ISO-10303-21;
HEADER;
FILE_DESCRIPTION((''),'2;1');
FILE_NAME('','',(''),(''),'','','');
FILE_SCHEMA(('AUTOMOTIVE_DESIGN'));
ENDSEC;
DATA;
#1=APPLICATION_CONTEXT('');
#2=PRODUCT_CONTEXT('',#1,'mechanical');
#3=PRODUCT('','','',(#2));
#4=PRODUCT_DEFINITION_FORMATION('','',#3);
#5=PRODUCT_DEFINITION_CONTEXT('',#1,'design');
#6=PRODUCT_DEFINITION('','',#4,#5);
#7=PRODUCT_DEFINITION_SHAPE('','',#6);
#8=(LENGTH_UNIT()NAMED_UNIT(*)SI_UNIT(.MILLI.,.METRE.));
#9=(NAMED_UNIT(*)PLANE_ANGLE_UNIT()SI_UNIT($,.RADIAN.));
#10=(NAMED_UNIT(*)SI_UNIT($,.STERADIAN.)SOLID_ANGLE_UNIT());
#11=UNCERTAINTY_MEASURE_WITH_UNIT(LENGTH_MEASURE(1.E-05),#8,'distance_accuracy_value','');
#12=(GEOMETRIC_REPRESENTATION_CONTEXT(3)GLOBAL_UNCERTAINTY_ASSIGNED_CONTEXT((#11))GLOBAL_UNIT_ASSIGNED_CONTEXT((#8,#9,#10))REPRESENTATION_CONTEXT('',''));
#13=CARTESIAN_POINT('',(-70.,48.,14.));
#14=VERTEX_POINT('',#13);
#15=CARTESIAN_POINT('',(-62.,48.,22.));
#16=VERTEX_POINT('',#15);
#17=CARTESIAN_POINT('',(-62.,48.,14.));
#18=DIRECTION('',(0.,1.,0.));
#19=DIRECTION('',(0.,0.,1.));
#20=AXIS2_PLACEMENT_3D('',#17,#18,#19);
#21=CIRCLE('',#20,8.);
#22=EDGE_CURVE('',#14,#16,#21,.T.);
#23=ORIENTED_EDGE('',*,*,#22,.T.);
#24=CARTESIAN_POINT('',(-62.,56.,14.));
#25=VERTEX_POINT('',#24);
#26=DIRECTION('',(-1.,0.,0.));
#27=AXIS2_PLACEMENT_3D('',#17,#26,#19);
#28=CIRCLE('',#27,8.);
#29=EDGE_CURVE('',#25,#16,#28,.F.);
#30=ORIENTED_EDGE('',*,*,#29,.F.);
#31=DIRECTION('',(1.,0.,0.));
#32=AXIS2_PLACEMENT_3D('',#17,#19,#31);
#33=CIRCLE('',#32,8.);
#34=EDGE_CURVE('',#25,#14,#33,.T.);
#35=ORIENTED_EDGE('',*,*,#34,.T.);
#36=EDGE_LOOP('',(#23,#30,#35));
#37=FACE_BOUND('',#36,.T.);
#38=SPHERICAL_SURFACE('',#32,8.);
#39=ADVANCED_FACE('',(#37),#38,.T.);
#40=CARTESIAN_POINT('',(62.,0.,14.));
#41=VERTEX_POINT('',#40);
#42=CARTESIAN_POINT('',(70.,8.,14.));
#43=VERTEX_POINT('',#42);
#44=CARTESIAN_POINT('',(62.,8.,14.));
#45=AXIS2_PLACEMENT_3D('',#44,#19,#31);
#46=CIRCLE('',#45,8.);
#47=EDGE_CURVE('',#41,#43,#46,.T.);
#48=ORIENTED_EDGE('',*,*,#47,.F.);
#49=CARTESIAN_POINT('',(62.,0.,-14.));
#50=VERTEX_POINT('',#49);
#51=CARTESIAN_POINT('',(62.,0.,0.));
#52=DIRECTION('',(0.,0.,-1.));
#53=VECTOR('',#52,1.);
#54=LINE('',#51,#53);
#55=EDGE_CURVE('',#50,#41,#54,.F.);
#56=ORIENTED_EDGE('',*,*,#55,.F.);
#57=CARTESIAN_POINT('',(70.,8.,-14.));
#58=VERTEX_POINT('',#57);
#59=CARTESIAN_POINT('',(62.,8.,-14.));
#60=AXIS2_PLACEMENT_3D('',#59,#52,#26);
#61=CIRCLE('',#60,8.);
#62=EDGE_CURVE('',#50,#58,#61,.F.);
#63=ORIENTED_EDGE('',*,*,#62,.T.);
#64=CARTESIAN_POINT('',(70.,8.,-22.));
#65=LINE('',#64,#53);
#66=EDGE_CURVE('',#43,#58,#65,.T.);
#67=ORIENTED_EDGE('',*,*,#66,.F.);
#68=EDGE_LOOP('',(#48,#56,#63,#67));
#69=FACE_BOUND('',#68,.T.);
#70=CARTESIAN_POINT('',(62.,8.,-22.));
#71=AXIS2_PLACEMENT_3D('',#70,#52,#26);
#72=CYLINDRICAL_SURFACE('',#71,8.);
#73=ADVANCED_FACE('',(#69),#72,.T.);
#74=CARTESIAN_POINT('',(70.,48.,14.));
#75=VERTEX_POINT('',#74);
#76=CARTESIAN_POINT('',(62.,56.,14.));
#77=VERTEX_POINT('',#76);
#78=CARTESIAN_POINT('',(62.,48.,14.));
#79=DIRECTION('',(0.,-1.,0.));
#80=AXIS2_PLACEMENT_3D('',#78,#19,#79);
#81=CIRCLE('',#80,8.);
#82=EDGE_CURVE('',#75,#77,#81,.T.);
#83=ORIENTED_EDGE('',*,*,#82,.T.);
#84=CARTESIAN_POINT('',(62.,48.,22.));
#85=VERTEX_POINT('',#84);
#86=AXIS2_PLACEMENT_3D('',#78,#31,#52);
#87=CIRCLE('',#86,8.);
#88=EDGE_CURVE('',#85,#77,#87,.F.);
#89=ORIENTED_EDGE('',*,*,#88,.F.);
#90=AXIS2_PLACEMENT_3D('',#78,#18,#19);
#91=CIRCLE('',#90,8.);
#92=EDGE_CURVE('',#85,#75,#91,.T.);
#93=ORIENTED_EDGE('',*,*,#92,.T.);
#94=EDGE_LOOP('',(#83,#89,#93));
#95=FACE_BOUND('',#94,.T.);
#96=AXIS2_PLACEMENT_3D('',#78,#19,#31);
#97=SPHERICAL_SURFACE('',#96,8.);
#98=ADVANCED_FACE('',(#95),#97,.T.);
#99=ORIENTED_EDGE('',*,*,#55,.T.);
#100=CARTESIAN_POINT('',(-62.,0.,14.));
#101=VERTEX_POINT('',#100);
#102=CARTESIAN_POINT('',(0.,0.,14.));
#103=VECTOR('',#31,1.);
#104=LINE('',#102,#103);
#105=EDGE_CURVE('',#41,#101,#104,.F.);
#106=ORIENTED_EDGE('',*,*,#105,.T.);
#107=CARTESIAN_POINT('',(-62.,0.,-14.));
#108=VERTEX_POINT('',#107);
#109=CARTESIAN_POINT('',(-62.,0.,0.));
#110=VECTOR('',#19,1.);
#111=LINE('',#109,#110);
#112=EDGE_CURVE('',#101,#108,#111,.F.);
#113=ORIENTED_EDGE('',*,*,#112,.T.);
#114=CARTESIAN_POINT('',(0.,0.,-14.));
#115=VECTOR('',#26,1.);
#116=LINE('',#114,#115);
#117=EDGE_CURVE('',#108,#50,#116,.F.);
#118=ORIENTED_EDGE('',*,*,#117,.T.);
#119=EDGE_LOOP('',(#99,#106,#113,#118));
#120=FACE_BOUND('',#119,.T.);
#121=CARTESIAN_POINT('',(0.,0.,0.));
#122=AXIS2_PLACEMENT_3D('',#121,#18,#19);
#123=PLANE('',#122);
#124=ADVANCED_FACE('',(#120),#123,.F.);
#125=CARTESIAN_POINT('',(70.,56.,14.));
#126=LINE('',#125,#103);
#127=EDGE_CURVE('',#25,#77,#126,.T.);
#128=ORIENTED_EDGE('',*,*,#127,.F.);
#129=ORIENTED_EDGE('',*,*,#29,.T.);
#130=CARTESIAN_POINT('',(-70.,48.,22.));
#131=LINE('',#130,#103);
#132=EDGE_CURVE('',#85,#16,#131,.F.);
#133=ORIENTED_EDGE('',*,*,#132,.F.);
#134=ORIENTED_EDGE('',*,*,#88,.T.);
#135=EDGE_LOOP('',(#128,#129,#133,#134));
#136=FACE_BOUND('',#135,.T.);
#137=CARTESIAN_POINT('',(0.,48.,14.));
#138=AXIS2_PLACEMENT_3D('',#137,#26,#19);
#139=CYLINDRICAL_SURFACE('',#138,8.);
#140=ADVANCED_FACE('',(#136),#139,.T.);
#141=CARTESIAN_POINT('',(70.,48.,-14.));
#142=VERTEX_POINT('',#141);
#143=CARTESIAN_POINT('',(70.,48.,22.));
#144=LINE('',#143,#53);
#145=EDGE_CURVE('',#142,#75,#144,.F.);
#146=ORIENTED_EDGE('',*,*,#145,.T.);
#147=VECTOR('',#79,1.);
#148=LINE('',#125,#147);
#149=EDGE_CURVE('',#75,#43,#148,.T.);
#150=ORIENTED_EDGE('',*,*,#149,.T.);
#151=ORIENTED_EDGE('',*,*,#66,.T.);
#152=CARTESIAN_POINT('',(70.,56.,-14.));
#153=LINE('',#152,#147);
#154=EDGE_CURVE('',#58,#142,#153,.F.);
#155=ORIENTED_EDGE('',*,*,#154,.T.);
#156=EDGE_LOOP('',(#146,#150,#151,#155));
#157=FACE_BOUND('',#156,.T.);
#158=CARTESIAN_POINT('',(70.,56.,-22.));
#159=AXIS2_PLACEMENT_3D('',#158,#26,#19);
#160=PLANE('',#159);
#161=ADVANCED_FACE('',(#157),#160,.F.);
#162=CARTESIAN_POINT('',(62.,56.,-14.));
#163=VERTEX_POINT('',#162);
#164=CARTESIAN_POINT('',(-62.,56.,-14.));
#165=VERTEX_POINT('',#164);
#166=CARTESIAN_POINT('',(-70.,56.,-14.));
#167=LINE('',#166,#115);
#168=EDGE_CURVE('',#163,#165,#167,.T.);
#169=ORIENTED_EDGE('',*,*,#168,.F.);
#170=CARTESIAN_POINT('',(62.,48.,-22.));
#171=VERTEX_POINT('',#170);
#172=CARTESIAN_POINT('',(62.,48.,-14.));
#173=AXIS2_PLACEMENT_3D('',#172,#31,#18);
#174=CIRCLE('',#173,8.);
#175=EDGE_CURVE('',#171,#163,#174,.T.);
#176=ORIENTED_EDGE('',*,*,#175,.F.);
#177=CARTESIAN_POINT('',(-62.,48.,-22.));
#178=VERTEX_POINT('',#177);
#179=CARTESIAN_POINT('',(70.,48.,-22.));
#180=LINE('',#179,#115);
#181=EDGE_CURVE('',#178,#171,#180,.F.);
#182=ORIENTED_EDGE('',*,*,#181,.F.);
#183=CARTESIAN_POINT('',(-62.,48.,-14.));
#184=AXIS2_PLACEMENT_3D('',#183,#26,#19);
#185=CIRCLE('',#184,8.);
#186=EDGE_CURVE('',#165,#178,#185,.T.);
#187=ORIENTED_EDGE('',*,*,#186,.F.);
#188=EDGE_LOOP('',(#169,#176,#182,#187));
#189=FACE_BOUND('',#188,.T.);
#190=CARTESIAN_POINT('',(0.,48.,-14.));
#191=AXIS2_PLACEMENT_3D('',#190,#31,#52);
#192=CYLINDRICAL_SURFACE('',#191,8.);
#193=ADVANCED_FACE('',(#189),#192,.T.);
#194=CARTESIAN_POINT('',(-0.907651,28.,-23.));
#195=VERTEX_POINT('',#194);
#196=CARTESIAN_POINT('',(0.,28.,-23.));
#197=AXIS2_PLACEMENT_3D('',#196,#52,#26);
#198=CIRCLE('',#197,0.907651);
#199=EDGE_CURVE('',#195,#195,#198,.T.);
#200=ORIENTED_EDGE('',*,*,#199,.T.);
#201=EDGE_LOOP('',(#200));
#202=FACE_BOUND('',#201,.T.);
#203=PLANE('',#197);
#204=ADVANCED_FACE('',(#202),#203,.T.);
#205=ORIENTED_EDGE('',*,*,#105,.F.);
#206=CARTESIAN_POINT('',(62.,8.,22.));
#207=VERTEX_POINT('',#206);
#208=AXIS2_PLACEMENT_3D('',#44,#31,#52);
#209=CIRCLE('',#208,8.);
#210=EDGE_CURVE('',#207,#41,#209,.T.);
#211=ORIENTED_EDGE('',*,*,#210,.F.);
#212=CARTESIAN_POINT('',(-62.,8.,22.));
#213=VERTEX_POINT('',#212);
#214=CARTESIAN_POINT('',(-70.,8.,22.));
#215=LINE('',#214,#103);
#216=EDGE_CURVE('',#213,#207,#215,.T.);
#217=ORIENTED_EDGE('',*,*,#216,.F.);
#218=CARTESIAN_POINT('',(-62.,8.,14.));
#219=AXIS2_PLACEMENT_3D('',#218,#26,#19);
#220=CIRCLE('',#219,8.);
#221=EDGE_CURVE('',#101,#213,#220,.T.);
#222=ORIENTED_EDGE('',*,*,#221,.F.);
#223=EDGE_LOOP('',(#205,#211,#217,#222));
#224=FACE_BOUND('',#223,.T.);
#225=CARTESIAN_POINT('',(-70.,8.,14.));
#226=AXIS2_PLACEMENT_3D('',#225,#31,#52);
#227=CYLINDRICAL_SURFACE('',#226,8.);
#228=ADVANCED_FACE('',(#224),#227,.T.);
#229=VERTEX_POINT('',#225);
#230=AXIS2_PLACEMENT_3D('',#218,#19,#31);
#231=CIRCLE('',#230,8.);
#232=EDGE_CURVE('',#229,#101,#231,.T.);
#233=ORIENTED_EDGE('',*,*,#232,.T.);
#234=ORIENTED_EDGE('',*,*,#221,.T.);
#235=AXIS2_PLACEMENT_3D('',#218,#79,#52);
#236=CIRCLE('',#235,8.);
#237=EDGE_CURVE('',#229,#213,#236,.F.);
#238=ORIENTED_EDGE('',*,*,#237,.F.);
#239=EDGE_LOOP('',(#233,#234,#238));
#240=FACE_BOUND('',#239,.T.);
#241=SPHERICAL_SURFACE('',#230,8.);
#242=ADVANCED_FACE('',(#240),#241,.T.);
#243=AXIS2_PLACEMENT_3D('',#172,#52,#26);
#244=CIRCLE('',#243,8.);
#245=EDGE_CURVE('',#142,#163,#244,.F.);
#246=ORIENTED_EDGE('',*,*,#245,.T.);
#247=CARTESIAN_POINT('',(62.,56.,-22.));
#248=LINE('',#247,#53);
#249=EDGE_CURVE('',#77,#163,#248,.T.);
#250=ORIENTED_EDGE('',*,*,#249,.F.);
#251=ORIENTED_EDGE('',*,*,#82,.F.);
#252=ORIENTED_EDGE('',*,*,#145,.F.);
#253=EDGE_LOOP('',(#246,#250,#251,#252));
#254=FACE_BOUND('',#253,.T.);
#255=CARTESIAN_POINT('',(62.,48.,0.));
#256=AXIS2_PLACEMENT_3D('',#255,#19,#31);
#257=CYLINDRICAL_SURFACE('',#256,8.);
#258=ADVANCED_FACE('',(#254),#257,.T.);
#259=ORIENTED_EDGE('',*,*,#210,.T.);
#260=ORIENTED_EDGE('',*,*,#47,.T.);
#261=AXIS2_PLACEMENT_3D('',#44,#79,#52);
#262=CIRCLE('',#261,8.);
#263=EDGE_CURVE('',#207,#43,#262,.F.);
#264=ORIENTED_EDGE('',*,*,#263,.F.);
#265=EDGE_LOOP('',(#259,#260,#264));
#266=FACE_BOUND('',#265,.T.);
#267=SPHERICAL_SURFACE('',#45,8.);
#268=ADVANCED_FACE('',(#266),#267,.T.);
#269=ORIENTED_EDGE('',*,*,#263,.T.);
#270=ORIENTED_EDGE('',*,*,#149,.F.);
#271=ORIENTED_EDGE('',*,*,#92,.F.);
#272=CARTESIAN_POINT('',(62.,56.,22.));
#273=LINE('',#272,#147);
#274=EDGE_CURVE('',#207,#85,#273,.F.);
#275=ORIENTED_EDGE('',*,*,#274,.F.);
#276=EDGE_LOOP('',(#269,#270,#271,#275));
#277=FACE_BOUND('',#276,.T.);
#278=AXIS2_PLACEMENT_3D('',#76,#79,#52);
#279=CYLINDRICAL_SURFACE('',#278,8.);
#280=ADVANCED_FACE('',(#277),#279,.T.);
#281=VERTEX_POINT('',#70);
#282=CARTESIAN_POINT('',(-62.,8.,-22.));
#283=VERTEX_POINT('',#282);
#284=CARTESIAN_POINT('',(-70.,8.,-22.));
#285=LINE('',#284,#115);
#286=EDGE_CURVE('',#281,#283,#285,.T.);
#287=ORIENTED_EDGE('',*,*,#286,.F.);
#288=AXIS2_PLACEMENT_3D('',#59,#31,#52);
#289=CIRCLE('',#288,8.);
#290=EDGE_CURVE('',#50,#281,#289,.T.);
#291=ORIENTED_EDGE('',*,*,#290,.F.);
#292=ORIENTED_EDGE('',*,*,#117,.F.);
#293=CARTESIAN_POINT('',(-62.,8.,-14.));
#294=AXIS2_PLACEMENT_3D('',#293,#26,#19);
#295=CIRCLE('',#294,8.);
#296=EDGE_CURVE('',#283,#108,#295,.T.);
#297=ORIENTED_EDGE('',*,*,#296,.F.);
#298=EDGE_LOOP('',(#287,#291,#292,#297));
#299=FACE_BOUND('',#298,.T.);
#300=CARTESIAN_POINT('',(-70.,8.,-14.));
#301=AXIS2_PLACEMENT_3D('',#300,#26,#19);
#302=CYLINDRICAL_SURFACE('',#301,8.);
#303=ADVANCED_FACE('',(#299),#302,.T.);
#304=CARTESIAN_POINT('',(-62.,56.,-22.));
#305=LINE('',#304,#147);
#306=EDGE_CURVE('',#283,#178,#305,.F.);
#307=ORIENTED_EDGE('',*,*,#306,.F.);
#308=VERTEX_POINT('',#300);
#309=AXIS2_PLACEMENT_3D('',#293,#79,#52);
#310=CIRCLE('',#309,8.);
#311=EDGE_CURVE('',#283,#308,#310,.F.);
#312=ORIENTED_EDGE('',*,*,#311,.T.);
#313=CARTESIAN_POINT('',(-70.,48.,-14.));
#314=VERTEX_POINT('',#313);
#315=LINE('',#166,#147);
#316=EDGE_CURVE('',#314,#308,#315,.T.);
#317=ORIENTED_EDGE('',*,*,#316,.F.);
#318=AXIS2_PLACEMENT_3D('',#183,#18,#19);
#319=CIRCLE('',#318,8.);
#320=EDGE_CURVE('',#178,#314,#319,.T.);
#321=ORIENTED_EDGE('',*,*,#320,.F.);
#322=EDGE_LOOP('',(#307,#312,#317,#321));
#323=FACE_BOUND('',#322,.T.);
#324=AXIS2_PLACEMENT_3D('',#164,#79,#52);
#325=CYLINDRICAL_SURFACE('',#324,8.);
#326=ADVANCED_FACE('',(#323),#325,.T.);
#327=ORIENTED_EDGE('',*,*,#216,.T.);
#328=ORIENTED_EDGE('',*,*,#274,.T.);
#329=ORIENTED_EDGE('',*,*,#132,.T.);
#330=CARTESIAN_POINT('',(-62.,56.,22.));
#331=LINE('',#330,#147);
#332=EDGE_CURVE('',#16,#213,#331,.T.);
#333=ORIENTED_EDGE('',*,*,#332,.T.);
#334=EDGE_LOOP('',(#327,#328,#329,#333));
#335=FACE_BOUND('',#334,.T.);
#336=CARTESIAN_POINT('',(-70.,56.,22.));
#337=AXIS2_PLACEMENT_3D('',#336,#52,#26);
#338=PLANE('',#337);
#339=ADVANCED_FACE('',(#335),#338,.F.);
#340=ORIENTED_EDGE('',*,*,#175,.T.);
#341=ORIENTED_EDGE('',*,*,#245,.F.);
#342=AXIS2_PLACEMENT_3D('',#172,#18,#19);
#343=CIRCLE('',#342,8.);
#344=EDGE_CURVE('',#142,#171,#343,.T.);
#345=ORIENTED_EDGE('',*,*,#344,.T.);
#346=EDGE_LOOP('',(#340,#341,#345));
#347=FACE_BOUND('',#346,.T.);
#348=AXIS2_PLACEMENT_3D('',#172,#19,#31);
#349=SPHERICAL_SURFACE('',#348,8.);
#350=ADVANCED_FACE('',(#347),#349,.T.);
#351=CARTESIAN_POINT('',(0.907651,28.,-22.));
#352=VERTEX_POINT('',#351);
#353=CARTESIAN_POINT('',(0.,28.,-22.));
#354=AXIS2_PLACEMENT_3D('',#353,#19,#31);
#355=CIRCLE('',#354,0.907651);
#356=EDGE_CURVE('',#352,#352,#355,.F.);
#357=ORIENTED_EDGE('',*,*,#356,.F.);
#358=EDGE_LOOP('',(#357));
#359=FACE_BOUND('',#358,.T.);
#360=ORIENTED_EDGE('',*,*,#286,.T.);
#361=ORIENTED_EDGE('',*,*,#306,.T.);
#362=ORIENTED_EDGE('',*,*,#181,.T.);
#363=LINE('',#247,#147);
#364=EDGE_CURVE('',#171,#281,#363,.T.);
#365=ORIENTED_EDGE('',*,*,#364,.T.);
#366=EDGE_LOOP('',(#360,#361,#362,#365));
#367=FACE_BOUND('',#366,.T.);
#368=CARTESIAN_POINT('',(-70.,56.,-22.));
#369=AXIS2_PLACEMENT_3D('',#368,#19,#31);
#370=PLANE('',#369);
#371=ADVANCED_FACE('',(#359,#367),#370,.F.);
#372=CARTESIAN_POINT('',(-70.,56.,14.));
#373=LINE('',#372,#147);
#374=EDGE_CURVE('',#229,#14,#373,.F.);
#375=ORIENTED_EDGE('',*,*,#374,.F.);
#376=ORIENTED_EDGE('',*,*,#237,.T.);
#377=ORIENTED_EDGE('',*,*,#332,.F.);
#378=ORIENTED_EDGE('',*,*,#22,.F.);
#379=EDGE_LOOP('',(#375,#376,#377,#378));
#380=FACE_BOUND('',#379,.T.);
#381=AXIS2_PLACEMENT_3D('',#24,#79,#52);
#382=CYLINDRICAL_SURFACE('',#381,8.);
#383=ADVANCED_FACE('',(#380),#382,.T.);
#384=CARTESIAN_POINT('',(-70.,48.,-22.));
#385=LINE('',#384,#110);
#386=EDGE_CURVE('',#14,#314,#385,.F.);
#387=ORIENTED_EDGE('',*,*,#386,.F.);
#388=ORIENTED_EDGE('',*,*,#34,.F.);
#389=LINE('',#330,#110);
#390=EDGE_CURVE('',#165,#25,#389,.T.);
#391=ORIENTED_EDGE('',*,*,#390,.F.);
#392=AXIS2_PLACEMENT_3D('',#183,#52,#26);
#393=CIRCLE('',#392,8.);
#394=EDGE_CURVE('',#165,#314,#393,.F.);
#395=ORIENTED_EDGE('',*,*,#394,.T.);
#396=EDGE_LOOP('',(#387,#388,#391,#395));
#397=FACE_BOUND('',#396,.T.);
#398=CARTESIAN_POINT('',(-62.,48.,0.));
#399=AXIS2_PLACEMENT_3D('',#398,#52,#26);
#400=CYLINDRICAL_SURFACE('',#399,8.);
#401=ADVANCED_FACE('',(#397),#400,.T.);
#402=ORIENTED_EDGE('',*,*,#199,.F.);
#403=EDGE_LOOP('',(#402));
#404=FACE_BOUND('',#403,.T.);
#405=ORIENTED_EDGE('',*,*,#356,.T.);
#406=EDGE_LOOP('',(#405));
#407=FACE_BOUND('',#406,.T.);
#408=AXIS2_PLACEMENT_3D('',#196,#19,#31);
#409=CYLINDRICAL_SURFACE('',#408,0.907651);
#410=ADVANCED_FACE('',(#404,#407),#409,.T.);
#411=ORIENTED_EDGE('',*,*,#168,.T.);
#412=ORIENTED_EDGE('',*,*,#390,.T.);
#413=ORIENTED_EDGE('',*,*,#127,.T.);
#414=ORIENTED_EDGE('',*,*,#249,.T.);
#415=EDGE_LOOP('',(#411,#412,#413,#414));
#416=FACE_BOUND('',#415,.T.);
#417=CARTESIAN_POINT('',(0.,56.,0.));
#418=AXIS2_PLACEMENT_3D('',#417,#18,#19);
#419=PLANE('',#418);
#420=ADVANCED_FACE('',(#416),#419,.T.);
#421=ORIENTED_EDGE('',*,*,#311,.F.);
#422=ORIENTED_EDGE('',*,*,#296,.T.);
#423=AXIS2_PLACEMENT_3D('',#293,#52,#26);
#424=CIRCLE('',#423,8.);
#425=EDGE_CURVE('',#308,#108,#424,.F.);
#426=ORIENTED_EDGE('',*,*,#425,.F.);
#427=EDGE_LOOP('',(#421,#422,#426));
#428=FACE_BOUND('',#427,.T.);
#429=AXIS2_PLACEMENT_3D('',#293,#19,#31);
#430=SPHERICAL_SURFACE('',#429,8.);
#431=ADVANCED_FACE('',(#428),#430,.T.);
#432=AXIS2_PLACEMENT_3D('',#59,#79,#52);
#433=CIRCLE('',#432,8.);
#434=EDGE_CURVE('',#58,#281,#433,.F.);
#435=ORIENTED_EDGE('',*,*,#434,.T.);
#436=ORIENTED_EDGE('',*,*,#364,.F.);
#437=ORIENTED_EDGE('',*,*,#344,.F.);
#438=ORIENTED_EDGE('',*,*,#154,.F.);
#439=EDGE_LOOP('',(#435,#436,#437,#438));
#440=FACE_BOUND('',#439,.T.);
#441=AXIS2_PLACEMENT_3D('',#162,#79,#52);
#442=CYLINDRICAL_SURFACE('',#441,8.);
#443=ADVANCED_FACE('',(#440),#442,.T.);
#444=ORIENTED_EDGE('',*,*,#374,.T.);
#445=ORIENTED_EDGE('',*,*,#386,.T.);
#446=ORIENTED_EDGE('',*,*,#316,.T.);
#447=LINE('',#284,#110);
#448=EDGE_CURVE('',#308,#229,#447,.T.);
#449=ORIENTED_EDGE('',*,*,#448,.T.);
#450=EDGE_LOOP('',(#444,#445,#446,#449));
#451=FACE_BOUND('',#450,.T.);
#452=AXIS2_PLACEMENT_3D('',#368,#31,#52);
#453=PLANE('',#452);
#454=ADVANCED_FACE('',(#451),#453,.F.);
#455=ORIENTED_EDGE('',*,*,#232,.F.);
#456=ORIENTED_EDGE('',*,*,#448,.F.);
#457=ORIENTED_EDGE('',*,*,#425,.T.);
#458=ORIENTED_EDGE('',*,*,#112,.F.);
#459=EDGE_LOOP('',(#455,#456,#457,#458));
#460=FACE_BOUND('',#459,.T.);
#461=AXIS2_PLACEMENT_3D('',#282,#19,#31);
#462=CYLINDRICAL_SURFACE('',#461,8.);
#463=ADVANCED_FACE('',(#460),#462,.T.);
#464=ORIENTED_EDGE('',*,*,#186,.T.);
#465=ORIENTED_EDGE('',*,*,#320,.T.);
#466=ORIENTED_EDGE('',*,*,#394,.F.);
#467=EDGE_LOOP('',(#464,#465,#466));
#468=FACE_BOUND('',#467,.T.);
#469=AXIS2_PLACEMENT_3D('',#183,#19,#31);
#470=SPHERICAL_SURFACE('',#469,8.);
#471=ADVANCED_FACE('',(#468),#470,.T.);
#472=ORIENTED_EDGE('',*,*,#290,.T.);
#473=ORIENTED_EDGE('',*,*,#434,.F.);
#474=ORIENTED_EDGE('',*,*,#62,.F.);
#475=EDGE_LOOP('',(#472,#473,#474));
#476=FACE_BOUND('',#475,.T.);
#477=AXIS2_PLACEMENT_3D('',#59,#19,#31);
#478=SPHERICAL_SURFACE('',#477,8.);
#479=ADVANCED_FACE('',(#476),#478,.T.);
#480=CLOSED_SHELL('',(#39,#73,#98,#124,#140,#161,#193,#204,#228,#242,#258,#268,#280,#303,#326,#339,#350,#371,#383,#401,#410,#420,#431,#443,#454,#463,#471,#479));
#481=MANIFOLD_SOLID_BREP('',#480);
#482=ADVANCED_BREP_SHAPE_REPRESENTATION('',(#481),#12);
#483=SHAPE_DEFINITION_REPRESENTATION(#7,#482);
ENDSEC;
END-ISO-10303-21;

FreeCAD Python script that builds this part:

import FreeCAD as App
import Part
import Sketcher
from FreeCAD import Vector

doc = App.newDocument("Part")
body = doc.addObject("PartDesign::Body", "Body")

# Sketch on XZ plane
sketch1 = body.newObject("Sketcher::SketchObject", "Sketch")
sketch1.AttachmentSupport = (doc.getObject("XZ_Plane"), [""])
sketch1.MapMode = "FlatFace"
sketch1.addGeometry([
    Part.LineSegment(Vector(-70, -22, 0), Vector(-70, 22, 0)),
    Part.LineSegment(Vector(-70, 22, 0), Vector(70, 22, 0)),
    Part.LineSegment(Vector(70, 22, 0), Vector(70, -22, 0)),
    Part.LineSegment(Vector(70, -22, 0), Vector(-70, -22, 0)),
], False)
sketch1.addConstraint([
    Sketcher.Constraint("Coincident", 0, 2, 1, 1),
    Sketcher.Constraint("Coincident", 1, 2, 2, 1),
    Sketcher.Constraint("Coincident", 2, 2, 3, 1),
    Sketcher.Constraint("Coincident", 3, 2, 0, 1),
    Sketcher.Constraint("Vertical", 0),
    Sketcher.Constraint("Horizontal", 1),
    Sketcher.Constraint("Vertical", 2),
    Sketcher.Constraint("Horizontal", 3),
    Sketcher.Constraint("Symmetric", 0, 2, 2, 2, -1, 1),
    Sketcher.Constraint("DistanceX", 1, 1, 1, 2, 140.0),
    Sketcher.Constraint("DistanceY", 0, 1, 0, 2, 44.0),
])
pad1 = body.newObject("PartDesign::Pad", "Pad")
pad1.Profile = sketch1
pad1.Length = 56
pad1.Reversed = True
doc.recompute()

fillet = body.newObject("PartDesign::Fillet", "Fillet")
fillet.Base = (pad1, ["Edge1"])
fillet.UseAllEdges = True
fillet.Radius = 8

# Sketch on XY plane
sketch2 = body.newObject("Sketcher::SketchObject", "Sketch001")
sketch2.AttachmentSupport = (doc.getObject("XY_Plane"), [""])
sketch2.MapMode = "FlatFace"
sketch2.AttachmentOffset = App.Placement(Vector(0, 0, -22), App.Rotation())
sketch2.addGeometry(Part.Circle(Vector(0, 28, 0), Vector(0, 0, 1), 0.9), False)
sketch2.addConstraint([
    Sketcher.Constraint("PointOnObject", 0, 3, -2),
    Sketcher.Constraint("DistanceY", -1, 1, 0, 3, 28.0),
    Sketcher.Constraint("Diameter", 0, 1.815301),
])
pad2 = body.newObject("PartDesign::Pad", "Pad001")
pad2.Profile = sketch2
pad2.Length = 1
pad2.Reversed = True

doc.recompute()
